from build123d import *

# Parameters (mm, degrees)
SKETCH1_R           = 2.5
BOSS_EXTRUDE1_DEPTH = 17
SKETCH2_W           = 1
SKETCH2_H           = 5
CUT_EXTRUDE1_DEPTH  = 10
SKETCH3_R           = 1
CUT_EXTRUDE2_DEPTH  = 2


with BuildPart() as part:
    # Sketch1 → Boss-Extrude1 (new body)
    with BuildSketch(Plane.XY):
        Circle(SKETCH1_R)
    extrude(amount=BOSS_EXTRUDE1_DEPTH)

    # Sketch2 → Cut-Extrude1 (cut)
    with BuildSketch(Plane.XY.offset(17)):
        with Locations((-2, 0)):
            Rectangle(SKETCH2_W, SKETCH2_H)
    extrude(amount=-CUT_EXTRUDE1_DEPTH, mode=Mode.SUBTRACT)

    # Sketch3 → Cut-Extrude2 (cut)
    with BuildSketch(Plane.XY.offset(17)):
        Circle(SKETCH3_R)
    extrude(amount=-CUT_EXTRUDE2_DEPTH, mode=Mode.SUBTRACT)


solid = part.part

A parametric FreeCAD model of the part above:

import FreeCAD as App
import Part
import Sketcher
from FreeCAD import Vector
Q = App.Units.Quantity


def add_polygon(sketch, points):
    """Adds a closed chain of lines whose ends are joined by coincident constraints."""
    first, n = sketch.GeometryCount, len(points)
    for a, b in zip(points, points[1:] + points[:1]):
        sketch.addGeometry(Part.LineSegment(App.Vector(*a, 0), App.Vector(*b, 0)), False)
    for i in range(n):
        sketch.addConstraint(Sketcher.Constraint("Coincident", first + i, 2, first + (i + 1) % n, 1))

doc = App.newDocument("Part")
body = doc.addObject("PartDesign::Body", "Body")

# Sketch on XY plane
sketch1 = doc.addObject("Sketcher::SketchObject", "Sketch")
body.addObject(sketch1)
sketch1.AttachmentSupport = (doc.XY_Plane, [""])
sketch1.MapMode = "FlatFace"
sketch1.addGeometry(Part.Circle(Vector(0, 0, 0), Vector(0, 0, 1), 2.5), False)
sketch1.addConstraint([
    Sketcher.Constraint("Coincident", 0, 3, -1, 1),
    Sketcher.Constraint("Diameter", 0, Q("5 mm")),
])
pad1 = doc.addObject("PartDesign::Pad", "Pad")
body.addObject(pad1)
pad1.Profile = sketch1
pad1.Length = 17

# Sketch on XY plane
sketch2 = doc.addObject("Sketcher::SketchObject", "Sketch001")
body.addObject(sketch2)
sketch2.AttachmentSupport = (doc.XY_Plane, [""])
sketch2.MapMode = "FlatFace"
sketch2.AttachmentOffset = App.Placement(Vector(0, 0, 17), App.Rotation())
add_polygon(sketch2, [(-2.5, 2.5), (-2.5, -2.5), (-1.5, -2.5), (-1.5, 2.5)])  # lines 0-3
sketch2.addConstraint([
    Sketcher.Constraint("Vertical", 0),
    Sketcher.Constraint("Horizontal", 1),
    Sketcher.Constraint("Vertical", 2),
    Sketcher.Constraint("Horizontal", 3),
    Sketcher.Constraint("DistanceX", 1, 1, 1, 2, Q("1 mm")),
    Sketcher.Constraint("DistanceY", 0, 2, 0, 1, Q("5 mm")),
    Sketcher.Constraint("DistanceX", 0, 2, -1, 1, Q("2.5 mm")),
    Sketcher.Constraint("DistanceY", 0, 2, -1, 1, Q("2.5 mm")),
])
pocket1 = doc.addObject("PartDesign::Pocket", "Pocket")
body.addObject(pocket1)
pocket1.Profile = sketch2
pocket1.Length = 10

# Sketch on XY plane
sketch3 = doc.addObject("Sketcher::SketchObject", "Sketch002")
body.addObject(sketch3)
sketch3.AttachmentSupport = (doc.XY_Plane, [""])
sketch3.MapMode = "FlatFace"
sketch3.AttachmentOffset = App.Placement(Vector(0, 0, 17), App.Rotation())
sketch3.addGeometry(Part.Circle(Vector(0, 0, 0), Vector(0, 0, 1), 1), False)
sketch3.addConstraint([
    Sketcher.Constraint("Coincident", 0, 3, -1, 1),
    Sketcher.Constraint("Diameter", 0, Q("2 mm")),
])
pocket2 = doc.addObject("PartDesign::Pocket", "Pocket001")
body.addObject(pocket2)
pocket2.Profile = sketch3
pocket2.Length = 2

doc.recompute()
